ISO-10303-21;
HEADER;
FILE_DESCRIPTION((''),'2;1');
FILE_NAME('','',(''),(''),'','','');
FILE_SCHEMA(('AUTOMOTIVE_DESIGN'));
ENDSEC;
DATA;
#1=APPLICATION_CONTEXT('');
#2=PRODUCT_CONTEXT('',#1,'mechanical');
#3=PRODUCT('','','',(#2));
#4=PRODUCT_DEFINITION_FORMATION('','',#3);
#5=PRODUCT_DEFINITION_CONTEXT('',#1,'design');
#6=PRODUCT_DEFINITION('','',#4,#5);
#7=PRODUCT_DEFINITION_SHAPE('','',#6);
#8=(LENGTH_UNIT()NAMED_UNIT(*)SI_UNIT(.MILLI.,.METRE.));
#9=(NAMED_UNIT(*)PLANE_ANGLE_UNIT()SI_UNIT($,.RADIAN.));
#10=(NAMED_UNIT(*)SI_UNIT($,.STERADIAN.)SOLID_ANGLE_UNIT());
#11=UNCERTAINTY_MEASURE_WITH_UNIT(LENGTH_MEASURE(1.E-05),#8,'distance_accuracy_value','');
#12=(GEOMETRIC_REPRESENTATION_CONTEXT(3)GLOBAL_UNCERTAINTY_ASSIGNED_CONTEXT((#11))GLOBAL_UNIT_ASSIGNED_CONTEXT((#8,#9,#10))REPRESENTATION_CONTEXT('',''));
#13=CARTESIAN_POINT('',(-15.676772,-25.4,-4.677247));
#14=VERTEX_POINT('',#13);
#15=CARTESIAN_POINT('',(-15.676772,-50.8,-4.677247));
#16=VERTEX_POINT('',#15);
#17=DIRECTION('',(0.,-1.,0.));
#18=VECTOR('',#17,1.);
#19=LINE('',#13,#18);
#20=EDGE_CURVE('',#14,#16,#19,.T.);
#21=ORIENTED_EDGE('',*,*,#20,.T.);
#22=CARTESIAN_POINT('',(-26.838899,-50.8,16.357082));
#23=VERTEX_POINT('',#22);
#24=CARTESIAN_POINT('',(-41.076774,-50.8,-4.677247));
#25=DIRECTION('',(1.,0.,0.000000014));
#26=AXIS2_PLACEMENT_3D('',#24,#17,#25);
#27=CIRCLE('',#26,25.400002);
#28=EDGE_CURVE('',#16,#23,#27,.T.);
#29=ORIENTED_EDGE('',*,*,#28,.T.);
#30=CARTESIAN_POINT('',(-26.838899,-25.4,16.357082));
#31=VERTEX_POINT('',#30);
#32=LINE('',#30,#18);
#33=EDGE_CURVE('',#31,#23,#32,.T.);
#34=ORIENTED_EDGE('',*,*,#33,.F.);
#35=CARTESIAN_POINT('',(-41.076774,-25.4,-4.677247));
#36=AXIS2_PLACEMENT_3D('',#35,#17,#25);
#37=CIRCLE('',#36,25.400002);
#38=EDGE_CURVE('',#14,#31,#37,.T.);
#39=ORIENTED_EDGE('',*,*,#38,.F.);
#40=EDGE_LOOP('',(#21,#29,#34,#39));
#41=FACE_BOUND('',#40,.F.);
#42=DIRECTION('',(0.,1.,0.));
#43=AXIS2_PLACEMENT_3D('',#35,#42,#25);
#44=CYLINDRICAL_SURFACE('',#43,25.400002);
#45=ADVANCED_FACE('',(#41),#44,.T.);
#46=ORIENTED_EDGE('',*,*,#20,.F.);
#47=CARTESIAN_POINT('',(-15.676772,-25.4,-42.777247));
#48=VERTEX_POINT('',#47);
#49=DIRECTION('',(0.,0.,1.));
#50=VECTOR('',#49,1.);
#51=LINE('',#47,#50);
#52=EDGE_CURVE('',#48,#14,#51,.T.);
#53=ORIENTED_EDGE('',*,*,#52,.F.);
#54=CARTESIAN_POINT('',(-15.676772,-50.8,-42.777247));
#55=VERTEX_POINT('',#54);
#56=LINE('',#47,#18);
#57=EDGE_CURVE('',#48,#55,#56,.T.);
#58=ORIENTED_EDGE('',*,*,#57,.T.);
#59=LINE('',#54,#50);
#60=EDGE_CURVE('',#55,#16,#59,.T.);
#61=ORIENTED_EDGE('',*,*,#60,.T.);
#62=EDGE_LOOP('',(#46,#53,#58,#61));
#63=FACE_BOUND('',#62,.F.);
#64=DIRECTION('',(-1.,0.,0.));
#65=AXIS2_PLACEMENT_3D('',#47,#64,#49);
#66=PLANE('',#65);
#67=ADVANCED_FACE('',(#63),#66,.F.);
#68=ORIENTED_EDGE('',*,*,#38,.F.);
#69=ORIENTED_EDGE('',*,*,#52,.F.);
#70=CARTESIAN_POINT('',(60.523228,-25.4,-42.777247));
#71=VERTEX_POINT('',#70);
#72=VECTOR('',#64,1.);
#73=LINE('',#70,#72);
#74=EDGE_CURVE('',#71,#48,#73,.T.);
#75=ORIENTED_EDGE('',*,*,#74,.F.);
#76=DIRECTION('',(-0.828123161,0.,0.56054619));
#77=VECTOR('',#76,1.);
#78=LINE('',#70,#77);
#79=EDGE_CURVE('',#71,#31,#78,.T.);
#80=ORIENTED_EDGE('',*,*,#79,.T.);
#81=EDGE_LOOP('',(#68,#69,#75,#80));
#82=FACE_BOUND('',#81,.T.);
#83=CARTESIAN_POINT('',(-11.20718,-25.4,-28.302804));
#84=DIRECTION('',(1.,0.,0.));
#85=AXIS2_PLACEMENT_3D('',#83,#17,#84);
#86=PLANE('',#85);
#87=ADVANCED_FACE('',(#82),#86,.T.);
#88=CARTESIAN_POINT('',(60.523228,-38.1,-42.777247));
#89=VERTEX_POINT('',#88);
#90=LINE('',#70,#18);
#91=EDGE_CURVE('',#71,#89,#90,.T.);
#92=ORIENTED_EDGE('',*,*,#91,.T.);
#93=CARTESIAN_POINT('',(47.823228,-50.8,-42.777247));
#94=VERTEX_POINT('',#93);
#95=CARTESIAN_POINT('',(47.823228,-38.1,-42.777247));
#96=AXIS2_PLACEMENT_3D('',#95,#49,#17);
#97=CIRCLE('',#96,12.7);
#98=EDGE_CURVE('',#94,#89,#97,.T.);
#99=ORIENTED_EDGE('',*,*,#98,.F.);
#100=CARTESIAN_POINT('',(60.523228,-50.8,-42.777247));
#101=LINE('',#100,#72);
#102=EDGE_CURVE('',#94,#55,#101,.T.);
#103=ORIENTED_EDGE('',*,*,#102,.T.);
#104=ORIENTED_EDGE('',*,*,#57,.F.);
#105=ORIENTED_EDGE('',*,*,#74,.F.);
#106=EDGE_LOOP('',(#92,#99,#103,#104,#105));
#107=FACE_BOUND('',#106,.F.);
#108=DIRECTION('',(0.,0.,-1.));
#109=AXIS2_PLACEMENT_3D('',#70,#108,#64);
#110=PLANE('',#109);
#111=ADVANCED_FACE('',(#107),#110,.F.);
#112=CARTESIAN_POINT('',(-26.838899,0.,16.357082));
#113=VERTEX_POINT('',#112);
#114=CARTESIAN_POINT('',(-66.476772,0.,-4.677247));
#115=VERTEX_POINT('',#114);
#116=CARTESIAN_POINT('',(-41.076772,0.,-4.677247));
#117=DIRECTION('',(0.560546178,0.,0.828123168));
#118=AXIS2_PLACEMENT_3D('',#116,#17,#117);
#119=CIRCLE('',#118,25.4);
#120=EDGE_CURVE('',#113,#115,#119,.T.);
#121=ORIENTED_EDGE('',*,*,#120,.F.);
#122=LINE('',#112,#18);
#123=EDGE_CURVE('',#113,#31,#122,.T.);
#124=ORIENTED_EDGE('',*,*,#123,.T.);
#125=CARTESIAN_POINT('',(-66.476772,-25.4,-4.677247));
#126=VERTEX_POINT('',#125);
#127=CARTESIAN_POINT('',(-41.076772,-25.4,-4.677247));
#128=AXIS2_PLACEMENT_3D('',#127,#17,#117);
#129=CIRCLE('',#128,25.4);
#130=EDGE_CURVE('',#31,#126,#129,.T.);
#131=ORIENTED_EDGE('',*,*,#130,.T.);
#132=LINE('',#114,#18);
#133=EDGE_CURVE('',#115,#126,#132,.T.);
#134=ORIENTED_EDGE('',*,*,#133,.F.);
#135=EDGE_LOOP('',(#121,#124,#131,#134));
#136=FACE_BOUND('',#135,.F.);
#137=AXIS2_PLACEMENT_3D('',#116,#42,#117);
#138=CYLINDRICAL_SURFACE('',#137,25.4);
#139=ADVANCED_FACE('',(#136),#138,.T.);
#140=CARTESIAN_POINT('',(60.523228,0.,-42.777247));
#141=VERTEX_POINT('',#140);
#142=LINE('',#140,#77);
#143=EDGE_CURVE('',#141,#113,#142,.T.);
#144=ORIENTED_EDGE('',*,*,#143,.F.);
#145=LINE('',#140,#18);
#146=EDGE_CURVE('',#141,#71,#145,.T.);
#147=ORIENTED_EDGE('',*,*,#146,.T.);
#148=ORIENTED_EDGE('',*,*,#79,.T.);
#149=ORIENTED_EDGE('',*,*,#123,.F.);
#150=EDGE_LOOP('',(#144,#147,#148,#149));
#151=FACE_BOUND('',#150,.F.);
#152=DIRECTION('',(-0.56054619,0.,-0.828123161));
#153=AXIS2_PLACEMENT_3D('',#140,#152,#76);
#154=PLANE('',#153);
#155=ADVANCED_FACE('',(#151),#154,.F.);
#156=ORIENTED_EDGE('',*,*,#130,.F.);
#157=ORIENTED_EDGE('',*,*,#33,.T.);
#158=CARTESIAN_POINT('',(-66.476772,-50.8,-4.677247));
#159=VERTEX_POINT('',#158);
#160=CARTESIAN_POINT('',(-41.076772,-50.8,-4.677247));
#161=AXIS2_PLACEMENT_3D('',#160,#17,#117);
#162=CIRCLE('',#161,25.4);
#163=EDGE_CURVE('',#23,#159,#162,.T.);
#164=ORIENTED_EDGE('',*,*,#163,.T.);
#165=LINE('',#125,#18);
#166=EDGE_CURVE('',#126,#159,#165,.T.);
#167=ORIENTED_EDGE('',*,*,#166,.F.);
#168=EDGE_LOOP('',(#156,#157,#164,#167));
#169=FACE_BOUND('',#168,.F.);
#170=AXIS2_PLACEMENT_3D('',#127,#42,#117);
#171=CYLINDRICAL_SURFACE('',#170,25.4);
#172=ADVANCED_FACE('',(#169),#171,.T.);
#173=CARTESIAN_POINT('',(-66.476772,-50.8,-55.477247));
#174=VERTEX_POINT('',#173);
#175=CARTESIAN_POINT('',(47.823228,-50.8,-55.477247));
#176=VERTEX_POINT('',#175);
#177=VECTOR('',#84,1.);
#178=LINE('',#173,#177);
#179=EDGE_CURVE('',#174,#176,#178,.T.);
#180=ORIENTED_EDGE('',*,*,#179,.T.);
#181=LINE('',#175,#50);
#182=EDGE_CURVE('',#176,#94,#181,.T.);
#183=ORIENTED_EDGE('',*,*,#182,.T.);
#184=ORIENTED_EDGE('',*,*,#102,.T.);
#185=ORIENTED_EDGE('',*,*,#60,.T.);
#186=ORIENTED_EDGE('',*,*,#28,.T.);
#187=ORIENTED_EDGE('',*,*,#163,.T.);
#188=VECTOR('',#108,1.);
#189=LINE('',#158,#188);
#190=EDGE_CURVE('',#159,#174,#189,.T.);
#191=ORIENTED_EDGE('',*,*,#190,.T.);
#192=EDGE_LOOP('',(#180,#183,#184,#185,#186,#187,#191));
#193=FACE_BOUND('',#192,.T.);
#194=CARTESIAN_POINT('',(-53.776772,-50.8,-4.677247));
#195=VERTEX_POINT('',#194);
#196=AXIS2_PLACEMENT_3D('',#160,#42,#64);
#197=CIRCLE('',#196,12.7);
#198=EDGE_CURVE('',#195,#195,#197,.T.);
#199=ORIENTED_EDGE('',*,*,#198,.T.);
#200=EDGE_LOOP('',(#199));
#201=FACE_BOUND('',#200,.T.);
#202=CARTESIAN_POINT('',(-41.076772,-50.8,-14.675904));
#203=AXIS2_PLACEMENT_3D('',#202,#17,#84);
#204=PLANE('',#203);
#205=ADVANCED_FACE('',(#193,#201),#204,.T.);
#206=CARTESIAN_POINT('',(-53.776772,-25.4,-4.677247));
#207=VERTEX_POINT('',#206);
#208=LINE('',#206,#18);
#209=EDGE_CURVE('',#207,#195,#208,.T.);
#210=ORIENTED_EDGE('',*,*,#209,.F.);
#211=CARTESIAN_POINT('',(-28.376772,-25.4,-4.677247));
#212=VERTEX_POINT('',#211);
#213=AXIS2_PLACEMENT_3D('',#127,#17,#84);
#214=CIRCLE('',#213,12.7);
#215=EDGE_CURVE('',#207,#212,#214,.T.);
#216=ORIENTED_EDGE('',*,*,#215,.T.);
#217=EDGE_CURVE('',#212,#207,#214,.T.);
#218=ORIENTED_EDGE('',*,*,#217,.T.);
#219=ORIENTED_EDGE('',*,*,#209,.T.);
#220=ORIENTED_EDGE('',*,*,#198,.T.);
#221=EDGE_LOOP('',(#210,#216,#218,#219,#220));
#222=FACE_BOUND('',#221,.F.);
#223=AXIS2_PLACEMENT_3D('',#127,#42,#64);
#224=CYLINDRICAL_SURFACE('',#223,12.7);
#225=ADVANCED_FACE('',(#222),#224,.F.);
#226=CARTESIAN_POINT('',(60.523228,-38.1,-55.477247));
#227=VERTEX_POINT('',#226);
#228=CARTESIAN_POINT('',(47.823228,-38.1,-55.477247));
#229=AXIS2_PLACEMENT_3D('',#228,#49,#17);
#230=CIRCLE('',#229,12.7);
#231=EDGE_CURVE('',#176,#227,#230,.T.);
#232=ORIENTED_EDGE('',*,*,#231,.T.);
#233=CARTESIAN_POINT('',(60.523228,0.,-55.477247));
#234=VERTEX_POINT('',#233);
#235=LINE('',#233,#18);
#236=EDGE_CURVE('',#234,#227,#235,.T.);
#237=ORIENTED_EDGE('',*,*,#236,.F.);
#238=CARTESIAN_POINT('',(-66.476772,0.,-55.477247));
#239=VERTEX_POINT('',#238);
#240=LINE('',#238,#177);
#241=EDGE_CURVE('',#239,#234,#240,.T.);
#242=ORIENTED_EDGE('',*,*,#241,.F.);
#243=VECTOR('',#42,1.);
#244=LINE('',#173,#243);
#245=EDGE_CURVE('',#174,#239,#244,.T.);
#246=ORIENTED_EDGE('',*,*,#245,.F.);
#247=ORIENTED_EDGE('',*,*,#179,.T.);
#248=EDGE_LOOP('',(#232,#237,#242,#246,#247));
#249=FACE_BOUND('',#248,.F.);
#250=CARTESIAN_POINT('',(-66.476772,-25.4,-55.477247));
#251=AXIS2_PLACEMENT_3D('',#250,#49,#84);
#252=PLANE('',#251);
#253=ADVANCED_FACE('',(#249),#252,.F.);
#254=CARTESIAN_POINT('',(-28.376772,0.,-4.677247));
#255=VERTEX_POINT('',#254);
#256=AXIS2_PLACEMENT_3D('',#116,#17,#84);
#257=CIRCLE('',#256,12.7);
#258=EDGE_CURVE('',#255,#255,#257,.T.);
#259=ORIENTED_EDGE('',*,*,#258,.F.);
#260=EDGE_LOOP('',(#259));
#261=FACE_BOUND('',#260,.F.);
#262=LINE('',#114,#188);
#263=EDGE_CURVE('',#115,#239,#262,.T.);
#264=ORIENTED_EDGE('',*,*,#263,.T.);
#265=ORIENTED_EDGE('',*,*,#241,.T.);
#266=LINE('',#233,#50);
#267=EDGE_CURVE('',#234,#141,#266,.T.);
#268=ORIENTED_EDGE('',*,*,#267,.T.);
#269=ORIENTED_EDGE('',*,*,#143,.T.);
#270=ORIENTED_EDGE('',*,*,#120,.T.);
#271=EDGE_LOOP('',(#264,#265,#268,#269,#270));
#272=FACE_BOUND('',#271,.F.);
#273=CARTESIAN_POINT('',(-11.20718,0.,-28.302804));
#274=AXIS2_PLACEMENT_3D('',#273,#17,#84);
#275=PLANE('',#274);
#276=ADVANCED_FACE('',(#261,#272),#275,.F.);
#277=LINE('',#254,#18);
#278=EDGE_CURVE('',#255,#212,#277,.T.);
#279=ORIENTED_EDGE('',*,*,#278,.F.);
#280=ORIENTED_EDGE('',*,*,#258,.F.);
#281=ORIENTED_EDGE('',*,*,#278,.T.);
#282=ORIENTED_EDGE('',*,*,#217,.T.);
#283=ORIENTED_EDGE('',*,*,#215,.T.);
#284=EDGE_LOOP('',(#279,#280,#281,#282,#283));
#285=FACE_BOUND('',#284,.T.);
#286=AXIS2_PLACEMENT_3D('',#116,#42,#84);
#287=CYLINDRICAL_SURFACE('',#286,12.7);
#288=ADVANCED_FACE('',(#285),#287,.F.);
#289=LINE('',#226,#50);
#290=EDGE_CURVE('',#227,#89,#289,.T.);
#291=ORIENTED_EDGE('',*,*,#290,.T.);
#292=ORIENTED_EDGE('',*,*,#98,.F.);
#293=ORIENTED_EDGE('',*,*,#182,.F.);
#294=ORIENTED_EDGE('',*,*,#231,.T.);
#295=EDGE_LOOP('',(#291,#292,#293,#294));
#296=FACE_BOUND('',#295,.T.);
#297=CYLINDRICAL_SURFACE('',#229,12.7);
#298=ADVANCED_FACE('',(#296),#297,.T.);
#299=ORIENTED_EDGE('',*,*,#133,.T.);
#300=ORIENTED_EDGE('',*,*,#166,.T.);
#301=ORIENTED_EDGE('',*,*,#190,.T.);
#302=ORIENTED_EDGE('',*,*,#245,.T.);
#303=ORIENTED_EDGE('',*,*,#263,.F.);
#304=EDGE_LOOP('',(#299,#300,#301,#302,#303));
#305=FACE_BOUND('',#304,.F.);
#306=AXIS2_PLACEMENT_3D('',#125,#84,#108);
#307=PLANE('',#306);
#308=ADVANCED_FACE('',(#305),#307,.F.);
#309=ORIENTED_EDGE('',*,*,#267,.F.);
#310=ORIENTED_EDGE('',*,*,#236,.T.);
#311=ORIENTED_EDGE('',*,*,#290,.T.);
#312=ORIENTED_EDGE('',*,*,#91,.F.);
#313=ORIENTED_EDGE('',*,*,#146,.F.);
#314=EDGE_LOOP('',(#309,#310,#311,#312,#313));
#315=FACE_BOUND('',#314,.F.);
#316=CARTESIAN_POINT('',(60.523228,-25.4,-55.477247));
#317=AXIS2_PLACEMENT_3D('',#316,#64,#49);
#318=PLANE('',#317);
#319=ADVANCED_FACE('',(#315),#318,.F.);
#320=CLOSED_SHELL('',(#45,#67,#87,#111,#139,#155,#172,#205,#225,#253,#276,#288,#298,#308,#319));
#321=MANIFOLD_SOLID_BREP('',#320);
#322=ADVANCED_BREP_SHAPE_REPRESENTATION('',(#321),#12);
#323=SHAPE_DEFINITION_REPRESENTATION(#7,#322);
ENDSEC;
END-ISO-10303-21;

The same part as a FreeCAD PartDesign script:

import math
import FreeCAD as App
import Part
import Sketcher
Q = App.Units.Quantity


def edges_at(feature, points):
    """Names of the edges that pass closest to the given points."""
    edges = feature.Shape.Edges
    near = lambda p: min(range(len(edges)), key=lambda i: edges[i].distToShape(Part.Vertex(*p))[0])
    return sorted({f"Edge{near(p) + 1}" for p in points})

doc = App.newDocument("Part")
body = doc.addObject("PartDesign::Body", "Body")

# Sketch on XZ plane
sketch1 = body.newObject("Sketcher::SketchObject", "Sketch")
sketch1.AttachmentSupport = (doc.getObject("XZ_Plane"), [""])
sketch1.MapMode = "FlatFace"
sketch1.addGeometry([
    Part.LineSegment(App.Vector(61, -43, 0), App.Vector(-27, 16, 0)),  # 0
    Part.ArcOfCircle(Part.Circle(App.Vector(-41, -5, 0), App.Vector(0, 0, 1), 25), math.radians(56), math.radians(180)),  # 1
    Part.LineSegment(App.Vector(-66, -5, 0), App.Vector(-66, -55, 0)),  # 2
    Part.LineSegment(App.Vector(-66, -55, 0), App.Vector(61, -55, 0)),  # 3
    Part.LineSegment(App.Vector(61, -55, 0), App.Vector(61, -43, 0)),  # 4
    Part.Circle(App.Vector(-41, -5, 0), App.Vector(0, 0, 1), 13),  # 5
], False)
sketch1.addConstraint([
    Sketcher.Constraint("Tangent", 0, 2, 1, 1),
    Sketcher.Constraint("Tangent", 1, 2, 2, 1),
    Sketcher.Constraint("Coincident", 2, 2, 3, 1),
    Sketcher.Constraint("Coincident", 3, 2, 4, 1),
    Sketcher.Constraint("Coincident", 4, 2, 0, 1),
    Sketcher.Constraint("Vertical", 2),
    Sketcher.Constraint("Horizontal", 3),
    Sketcher.Constraint("Vertical", 4),
    Sketcher.Constraint("Coincident", 5, 3, 1, 3),
    Sketcher.Constraint("Diameter", 5, Q("1 in")),
    Sketcher.Constraint("Radius", 1, Q("1 in")),
    Sketcher.Constraint("DistanceX", 3, 1, 3, 2, Q("5 in")),
    Sketcher.Constraint("DistanceY", 2, 2, 2, 1, Q("2 in")),
    Sketcher.Constraint("DistanceY", 4, 1, 4, 2, Q("0.5 in")),
    Sketcher.Constraint("DistanceX", 0, 2, -1, 1, 26.838899),
    Sketcher.Constraint("DistanceY", -1, 1, 0, 2, 16.357082),
])
pad1 = body.newObject("PartDesign::Pad", "Pad")
pad1.Profile = sketch1
pad1.Length = Q("1 in")

# Sketch on XZ plane
sketch2 = body.newObject("Sketcher::SketchObject", "Sketch001")
sketch2.AttachmentSupport = (doc.getObject("XZ_Plane"), [""])
sketch2.MapMode = "FlatFace"
sketch2.AttachmentOffset = App.Placement(App.Vector(0, 0, 1 * 25.4), App.Rotation())
sketch2.addGeometry([
    Part.Circle(App.Vector(-41, -5, 0), App.Vector(0, 0, 1), 25),
    Part.Circle(App.Vector(-41, -5, 0), App.Vector(0, 0, 1), 13),
], False)
sketch2.addConstraint([
    Sketcher.Constraint("Coincident", 1, 3, 0, 3),
    Sketcher.Constraint("Diameter", 0, Q("2 in")),
    Sketcher.Constraint("Diameter", 1, Q("1 in")),
    Sketcher.Constraint("DistanceX", 0, 3, -1, 1, 41.076772),
    Sketcher.Constraint("DistanceY", 0, 3, -1, 1, 4.677247),
])
pad2 = body.newObject("PartDesign::Pad", "Pad001")
pad2.Profile = sketch2
pad2.Length = Q("1 in")

# Sketch on XZ plane
sketch3 = body.newObject("Sketcher::SketchObject", "Sketch002")
sketch3.AttachmentSupport = (doc.getObject("XZ_Plane"), [""])
sketch3.MapMode = "FlatFace"
sketch3.AttachmentOffset = App.Placement(App.Vector(0, 0, 1 * 25.4), App.Rotation())
sketch3.addGeometry([
    Part.ArcOfCircle(Part.Circle(App.Vector(-41, -5, 0), App.Vector(0, 0, 1), 25), math.radians(0), math.radians(56)),  # 0
    Part.ArcOfCircle(Part.Circle(App.Vector(-41, -5, 0), App.Vector(0, 0, 1), 25), math.radians(56), math.radians(180)),  # 1
    Part.LineSegment(App.Vector(-66, -5, 0), App.Vector(-66, -55, 0)),  # 2
    Part.LineSegment(App.Vector(-66, -55, 0), App.Vector(61, -55, 0)),  # 3
    Part.LineSegment(App.Vector(61, -55, 0), App.Vector(61, -43, 0)),  # 4
    Part.LineSegment(App.Vector(61, -43, 0), App.Vector(-16, -43, 0)),  # 5
    Part.LineSegment(App.Vector(-16, -43, 0), App.Vector(-16, -5, 0)),  # 6
    Part.Circle(App.Vector(-41, -5, 0), App.Vector(0, 0, 1), 13),  # 7
], False)
sketch3.addConstraint([
    Sketcher.Constraint("Tangent", 0, 2, 1, 1),
    Sketcher.Constraint("Tangent", 1, 2, 2, 1),
    Sketcher.Constraint("Coincident", 2, 2, 3, 1),
    Sketcher.Constraint("Coincident", 3, 2, 4, 1),
    Sketcher.Constraint("Coincident", 4, 2, 5, 1),
    Sketcher.Constraint("Coincident", 5, 2, 6, 1),
    Sketcher.Constraint("Tangent", 6, 2, 0, 1),
    Sketcher.Constraint("Vertical", 2),
    Sketcher.Constraint("Horizontal", 3),
    Sketcher.Constraint("Vertical", 4),
    Sketcher.Constraint("Horizontal", 5),
    Sketcher.Constraint("Vertical", 6),
    Sketcher.Constraint("Coincident", 7, 3, 0, 3),
    Sketcher.Constraint("Equal", 0, 1),
    Sketcher.Constraint("Diameter", 7, Q("1 in")),
    Sketcher.Constraint("Radius", 0, Q("1.0000001 in")),
    Sketcher.Constraint("DistanceX", 3, 1, 3, 2, Q("5 in")),
    Sketcher.Constraint("DistanceY", 2, 2, 2, 1, Q("2 in")),
    Sketcher.Constraint("DistanceY", 4, 1, 4, 2, Q("0.5 in")),
    Sketcher.Constraint("DistanceX", 0, 2, -1, 1, 26.838899),
    Sketcher.Constraint("DistanceX", 1, 3, -1, 1, 41.076772),
    Sketcher.Constraint("DistanceY", -1, 1, 0, 2, 16.357082),
])
pad3 = body.newObject("PartDesign::Pad", "Pad002")
pad3.Profile = sketch3
pad3.Length = Q("1 in")
doc.recompute()

fillet = body.newObject("PartDesign::Fillet", "Fillet")
fillet.Base = (pad3, edges_at(pad3, [(60.523, -50.8, -49.127)]))
fillet.Radius = Q("0.5 in")

doc.recompute()
